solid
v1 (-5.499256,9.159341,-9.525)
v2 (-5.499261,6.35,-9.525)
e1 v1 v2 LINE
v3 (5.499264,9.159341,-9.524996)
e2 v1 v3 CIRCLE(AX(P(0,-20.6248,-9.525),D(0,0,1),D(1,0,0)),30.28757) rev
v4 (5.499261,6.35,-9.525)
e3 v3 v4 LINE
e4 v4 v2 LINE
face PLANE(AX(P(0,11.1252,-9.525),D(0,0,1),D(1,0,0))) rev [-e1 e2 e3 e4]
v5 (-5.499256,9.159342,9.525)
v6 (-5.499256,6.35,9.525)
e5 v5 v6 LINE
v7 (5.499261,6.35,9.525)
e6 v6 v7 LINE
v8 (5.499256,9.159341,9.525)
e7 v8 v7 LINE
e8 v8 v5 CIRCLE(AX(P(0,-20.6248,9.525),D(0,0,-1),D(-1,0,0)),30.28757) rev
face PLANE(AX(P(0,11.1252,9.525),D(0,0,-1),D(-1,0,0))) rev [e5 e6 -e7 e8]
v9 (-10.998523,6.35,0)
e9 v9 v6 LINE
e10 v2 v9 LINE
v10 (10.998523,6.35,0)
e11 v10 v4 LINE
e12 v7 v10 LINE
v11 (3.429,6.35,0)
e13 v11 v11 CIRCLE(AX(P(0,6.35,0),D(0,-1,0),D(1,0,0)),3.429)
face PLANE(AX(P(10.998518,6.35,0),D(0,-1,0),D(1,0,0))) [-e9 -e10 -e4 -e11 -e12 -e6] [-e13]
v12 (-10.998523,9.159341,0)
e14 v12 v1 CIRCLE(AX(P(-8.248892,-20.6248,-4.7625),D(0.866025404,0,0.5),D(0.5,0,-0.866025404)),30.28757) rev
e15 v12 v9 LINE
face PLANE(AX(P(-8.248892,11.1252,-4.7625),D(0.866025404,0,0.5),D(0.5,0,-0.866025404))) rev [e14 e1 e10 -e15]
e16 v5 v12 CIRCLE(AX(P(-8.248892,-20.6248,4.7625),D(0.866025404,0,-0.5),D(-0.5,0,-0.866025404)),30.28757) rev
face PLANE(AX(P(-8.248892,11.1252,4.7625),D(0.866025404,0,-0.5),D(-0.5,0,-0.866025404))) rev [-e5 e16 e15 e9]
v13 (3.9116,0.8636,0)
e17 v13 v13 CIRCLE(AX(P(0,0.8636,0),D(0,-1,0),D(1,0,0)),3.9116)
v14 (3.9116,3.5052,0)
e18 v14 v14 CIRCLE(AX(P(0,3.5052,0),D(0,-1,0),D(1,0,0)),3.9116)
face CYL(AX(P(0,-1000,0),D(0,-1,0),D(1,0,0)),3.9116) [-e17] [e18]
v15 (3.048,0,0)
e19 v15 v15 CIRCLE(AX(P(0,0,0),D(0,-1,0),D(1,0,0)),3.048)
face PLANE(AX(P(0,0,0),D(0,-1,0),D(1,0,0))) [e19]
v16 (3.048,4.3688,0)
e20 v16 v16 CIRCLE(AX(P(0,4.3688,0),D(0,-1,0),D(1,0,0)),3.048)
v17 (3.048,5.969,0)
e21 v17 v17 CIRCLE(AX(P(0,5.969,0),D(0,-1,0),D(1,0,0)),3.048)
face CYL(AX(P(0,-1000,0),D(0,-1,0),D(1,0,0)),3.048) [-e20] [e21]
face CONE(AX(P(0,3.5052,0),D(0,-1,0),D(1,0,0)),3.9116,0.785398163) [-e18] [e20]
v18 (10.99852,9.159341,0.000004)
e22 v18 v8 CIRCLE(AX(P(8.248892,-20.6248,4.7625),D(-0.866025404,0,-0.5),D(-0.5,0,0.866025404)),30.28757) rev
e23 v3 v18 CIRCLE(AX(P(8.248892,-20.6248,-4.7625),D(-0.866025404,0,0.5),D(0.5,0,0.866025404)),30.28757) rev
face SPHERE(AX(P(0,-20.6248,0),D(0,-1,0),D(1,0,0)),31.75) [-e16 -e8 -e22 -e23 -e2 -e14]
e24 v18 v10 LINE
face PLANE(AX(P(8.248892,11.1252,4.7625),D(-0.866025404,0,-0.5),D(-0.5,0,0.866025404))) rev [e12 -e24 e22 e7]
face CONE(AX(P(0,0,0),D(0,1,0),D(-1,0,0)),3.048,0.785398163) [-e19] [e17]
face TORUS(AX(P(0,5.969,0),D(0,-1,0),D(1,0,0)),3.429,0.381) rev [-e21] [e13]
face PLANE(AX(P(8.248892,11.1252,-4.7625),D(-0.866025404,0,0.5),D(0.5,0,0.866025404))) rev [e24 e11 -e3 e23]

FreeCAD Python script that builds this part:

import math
import FreeCAD as App
import Part
import Sketcher
from FreeCAD import Vector
Q = App.Units.Quantity

doc = App.newDocument("Part")
params = doc.addObject("Spreadsheet::Sheet", "Params")
for row, (alias, value) in enumerate([
    ("sketch1_radius", "1.25 in"),
    ("sketch1_radius2", "0.015 in"),
    ("sketch1_width", "0.12 in"),
    ("sketch1_height", "0.104 in"),
    ("sketch1_height2", "0.063 in"),
    ("revolution_angle", "360 deg"),
    ("pocket1_length", "0.438 in"),
], start=1):
    params.set(f"A{row}", alias)
    params.set(f"B{row}", "=" + value)
    params.setAlias(f"B{row}", alias)

body = doc.addObject("PartDesign::Body", "Body")

# Sketch on XY plane
sketch1 = body.newObject("Sketcher::SketchObject", "Sketch")
sketch1.AttachmentSupport = (doc.getObject("XY_Plane"), [""])
sketch1.MapMode = "FlatFace"
sketch1.addGeometry(Part.LineSegment(Vector(3.91, 0.86, 0), Vector(3.91, 3.51, 0)), False)
sketch1.addGeometry(Part.LineSegment(Vector(3.91, 3.51, 0), Vector(3.05, 4.37, 0)), False)
sketch1.addGeometry(Part.LineSegment(Vector(3.05, 4.37, 0), Vector(3.05, 5.97, 0)), False)
sketch1.addGeometry(Part.ArcOfCircle(Part.Circle(Vector(3.43, 5.97, 0), Vector(0, 0, 1), 0.38), math.radians(90), math.radians(180)), False)
sketch1.addGeometry(Part.LineSegment(Vector(3.43, 6.35, 0), Vector(11, 6.35, 0)), False)
sketch1.addGeometry(Part.LineSegment(Vector(11, 6.35, 0), Vector(11, 9.16, 0)), False)
sketch1.addGeometry(Part.ArcOfCircle(Part.Circle(Vector(0, -20.62, 0), Vector(0, 0, 1), 31.75), math.radians(70), math.radians(90)), False)
sketch1.addGeometry(Part.LineSegment(Vector(0, 11.13, 0), Vector(0, 0, 0)), False)
sketch1.addGeometry(Part.LineSegment(Vector(0, 0, 0), Vector(3.05, 0, 0)), False)
sketch1.addGeometry(Part.LineSegment(Vector(3.05, 0, 0), Vector(3.91, 0.86, 0)), False)
sketch1.addConstraint(Sketcher.Constraint("Coincident", 0, 2, 1, 1))
sketch1.addConstraint(Sketcher.Constraint("Coincident", 1, 2, 2, 1))
sketch1.addConstraint(Sketcher.Constraint("Tangent", 2, 2, 3, 2))
sketch1.addConstraint(Sketcher.Constraint("Tangent", 3, 1, 4, 1))
sketch1.addConstraint(Sketcher.Constraint("Coincident", 4, 2, 5, 1))
sketch1.addConstraint(Sketcher.Constraint("Coincident", 5, 2, 6, 1))
sketch1.addConstraint(Sketcher.Constraint("Coincident", 6, 2, 7, 1))
sketch1.addConstraint(Sketcher.Constraint("Coincident", 7, 2, 8, 1))
sketch1.addConstraint(Sketcher.Constraint("Coincident", 8, 2, 9, 1))
sketch1.addConstraint(Sketcher.Constraint("Coincident", 9, 2, 0, 1))
sketch1.addConstraint(Sketcher.Constraint("Vertical", 0))
sketch1.addConstraint(Sketcher.Constraint("Vertical", 2))
sketch1.addConstraint(Sketcher.Constraint("Horizontal", 4))
sketch1.addConstraint(Sketcher.Constraint("Vertical", 5))
sketch1.addConstraint(Sketcher.Constraint("Vertical", 7))
sketch1.addConstraint(Sketcher.Constraint("Horizontal", 8))
sketch1.addConstraint(Sketcher.Constraint("Coincident", 7, 2, -1, 1))
sketch1.addConstraint(Sketcher.Constraint("PointOnObject", 6, 3, -2))
sketch1.addConstraint(Sketcher.Constraint("Perpendicular", 1, 9))
sketch1.addConstraint(Sketcher.Constraint("Vertical", 2, 2, 8, 2))
sketch1.addConstraint(Sketcher.Constraint("Equal", 1, 9))
sketch1.addConstraint(Sketcher.Constraint("Radius", 6, Q("1.25 in")))
sketch1.addConstraint(Sketcher.Constraint("Radius", 3, Q("0.015 in")))
sketch1.addConstraint(Sketcher.Constraint("DistanceX", 8, 1, 8, 2, Q("0.12 in")))
sketch1.addConstraint(Sketcher.Constraint("DistanceY", 0, 2, 6, 2, Q("0.3 in")))
sketch1.addConstraint(Sketcher.Constraint("DistanceY", 0, 1, 0, 2, Q("0.104 in")))
sketch1.addConstraint(Sketcher.Constraint("DistanceY", 2, 1, 2, 2, Q("0.063 in")))
sketch1.addConstraint(Sketcher.Constraint("DistanceY", 7, 2, 7, 1, Q("0.438 in")))
sketch1.addConstraint(Sketcher.Constraint("DistanceY", 5, 1, 5, 2, 2.809342))
sketch1.setExpression("Constraints[21]", "Params.sketch1_radius")
sketch1.setExpression("Constraints[22]", "Params.sketch1_radius2")
sketch1.setExpression("Constraints[23]", "Params.sketch1_width")
sketch1.setExpression("Constraints[25]", "Params.sketch1_height")
sketch1.setExpression("Constraints[26]", "Params.sketch1_height2")
revolution = body.newObject("PartDesign::Revolution", "Revolution")
revolution.Profile = sketch1
revolution.ReferenceAxis = (sketch1, ["V_Axis"])
revolution.setExpression("Angle", "Params.revolution_angle")

# Sketch on XZ plane
sketch2 = body.newObject("Sketcher::SketchObject", "Sketch001")
sketch2.AttachmentSupport = (doc.getObject("XZ_Plane"), [""])
sketch2.MapMode = "FlatFace"
sketch2.addGeometry(Part.ArcOfCircle(Part.Circle(Vector(0, 0, 0), Vector(0, 0, 1), 11), math.radians(60), math.radians(120)), False)
sketch2.addGeometry(Part.LineSegment(Vector(5, 10, 0), Vector(-5, 10, 0)), False)
sketch2.addGeometry(Part.ArcOfCircle(Part.Circle(Vector(0, 0, 0), Vector(0, 0, 1), 11), math.radians(120), math.radians(180)), False)
sketch2.addGeometry(Part.LineSegment(Vector(-5, 10, 0), Vector(-11, 0, 0)), False)
sketch2.addGeometry(Part.ArcOfCircle(Part.Circle(Vector(0, 0, 0), Vector(0, 0, 1), 11), math.radians(0), math.radians(60)), False)
sketch2.addGeometry(Part.LineSegment(Vector(11, 0, 0), Vector(5, 10, 0)), False)
sketch2.addGeometry(Part.LineSegment(Vector(5, -10, 0), Vector(11, 0, 0)), False)
sketch2.addGeometry(Part.ArcOfCircle(Part.Circle(Vector(0, 0, 0), Vector(0, 0, 1), 11), math.radians(-60), math.radians(0)), False)
sketch2.addGeometry(Part.LineSegment(Vector(-5, -10, 0), Vector(5, -10, 0)), False)
sketch2.addGeometry(Part.ArcOfCircle(Part.Circle(Vector(0, 0, 0), Vector(0, 0, 1), 11), math.radians(-120), math.radians(-60)), False)
sketch2.addGeometry(Part.LineSegment(Vector(-11, 0, 0), Vector(-5, -10, 0)), False)
sketch2.addGeometry(Part.ArcOfCircle(Part.Circle(Vector(0, 0, 0), Vector(0, 0, 1), 11), math.radians(180), math.radians(240)), False)
sketch2.addConstraint(Sketcher.Constraint("Coincident", 0, 1, 1, 1))
sketch2.addConstraint(Sketcher.Constraint("Coincident", 1, 2, 0, 2))
sketch2.addConstraint(Sketcher.Constraint("Coincident", 2, 1, 3, 1))
sketch2.addConstraint(Sketcher.Constraint("Coincident", 3, 2, 2, 2))
sketch2.addConstraint(Sketcher.Constraint("Coincident", 4, 1, 5, 1))
sketch2.addConstraint(Sketcher.Constraint("Coincident", 5, 2, 4, 2))
sketch2.addConstraint(Sketcher.Constraint("Coincident", 6, 1, 7, 1))
sketch2.addConstraint(Sketcher.Constraint("Coincident", 7, 2, 6, 2))
sketch2.addConstraint(Sketcher.Constraint("Coincident", 8, 1, 9, 1))
sketch2.addConstraint(Sketcher.Constraint("Coincident", 9, 2, 8, 2))
sketch2.addConstraint(Sketcher.Constraint("Coincident", 10, 1, 11, 1))
sketch2.addConstraint(Sketcher.Constraint("Coincident", 11, 2, 10, 2))
sketch2.addConstraint(Sketcher.Constraint("Horizontal", 1))
sketch2.addConstraint(Sketcher.Constraint("Horizontal", 8))
sketch2.addConstraint(Sketcher.Constraint("Coincident", 0, 3, -1, 1))
sketch2.addConstraint(Sketcher.Constraint("Coincident", 2, 3, -1, 1))
sketch2.addConstraint(Sketcher.Constraint("Coincident", 4, 3, -1, 1))
sketch2.addConstraint(Sketcher.Constraint("Coincident", 7, 3, -1, 1))
sketch2.addConstraint(Sketcher.Constraint("Coincident", 9, 3, -1, 1))
sketch2.addConstraint(Sketcher.Constraint("Coincident", 11, 3, -1, 1))
sketch2.addConstraint(Sketcher.Constraint("Coincident", 2, 1, 1, 2))
sketch2.addConstraint(Sketcher.Constraint("Coincident", 5, 2, 0, 1))
sketch2.addConstraint(Sketcher.Constraint("Coincident", 7, 2, 4, 1))
sketch2.addConstraint(Sketcher.Constraint("Coincident", 9, 2, 6, 1))
sketch2.addConstraint(Sketcher.Constraint("Coincident", 10, 1, 3, 2))
sketch2.addConstraint(Sketcher.Constraint("PointOnObject", 3, 2, -1))
sketch2.addConstraint(Sketcher.Constraint("PointOnObject", 4, 1, -1))
sketch2.addConstraint(Sketcher.Constraint("Parallel", 3, 6))
sketch2.addConstraint(Sketcher.Constraint("Parallel", 5, 10))
sketch2.addConstraint(Sketcher.Constraint("Angle", 3, Q("-120 deg")))
sketch2.addConstraint(Sketcher.Constraint("DistanceY", -1, 1, 0, 1, Q("0.375 in")))
pocket1 = body.newObject("PartDesign::Pocket", "Pocket")
pocket1.Profile = sketch2
pocket1.setExpression("Length", "Params.pocket1_length")

doc.recompute()
